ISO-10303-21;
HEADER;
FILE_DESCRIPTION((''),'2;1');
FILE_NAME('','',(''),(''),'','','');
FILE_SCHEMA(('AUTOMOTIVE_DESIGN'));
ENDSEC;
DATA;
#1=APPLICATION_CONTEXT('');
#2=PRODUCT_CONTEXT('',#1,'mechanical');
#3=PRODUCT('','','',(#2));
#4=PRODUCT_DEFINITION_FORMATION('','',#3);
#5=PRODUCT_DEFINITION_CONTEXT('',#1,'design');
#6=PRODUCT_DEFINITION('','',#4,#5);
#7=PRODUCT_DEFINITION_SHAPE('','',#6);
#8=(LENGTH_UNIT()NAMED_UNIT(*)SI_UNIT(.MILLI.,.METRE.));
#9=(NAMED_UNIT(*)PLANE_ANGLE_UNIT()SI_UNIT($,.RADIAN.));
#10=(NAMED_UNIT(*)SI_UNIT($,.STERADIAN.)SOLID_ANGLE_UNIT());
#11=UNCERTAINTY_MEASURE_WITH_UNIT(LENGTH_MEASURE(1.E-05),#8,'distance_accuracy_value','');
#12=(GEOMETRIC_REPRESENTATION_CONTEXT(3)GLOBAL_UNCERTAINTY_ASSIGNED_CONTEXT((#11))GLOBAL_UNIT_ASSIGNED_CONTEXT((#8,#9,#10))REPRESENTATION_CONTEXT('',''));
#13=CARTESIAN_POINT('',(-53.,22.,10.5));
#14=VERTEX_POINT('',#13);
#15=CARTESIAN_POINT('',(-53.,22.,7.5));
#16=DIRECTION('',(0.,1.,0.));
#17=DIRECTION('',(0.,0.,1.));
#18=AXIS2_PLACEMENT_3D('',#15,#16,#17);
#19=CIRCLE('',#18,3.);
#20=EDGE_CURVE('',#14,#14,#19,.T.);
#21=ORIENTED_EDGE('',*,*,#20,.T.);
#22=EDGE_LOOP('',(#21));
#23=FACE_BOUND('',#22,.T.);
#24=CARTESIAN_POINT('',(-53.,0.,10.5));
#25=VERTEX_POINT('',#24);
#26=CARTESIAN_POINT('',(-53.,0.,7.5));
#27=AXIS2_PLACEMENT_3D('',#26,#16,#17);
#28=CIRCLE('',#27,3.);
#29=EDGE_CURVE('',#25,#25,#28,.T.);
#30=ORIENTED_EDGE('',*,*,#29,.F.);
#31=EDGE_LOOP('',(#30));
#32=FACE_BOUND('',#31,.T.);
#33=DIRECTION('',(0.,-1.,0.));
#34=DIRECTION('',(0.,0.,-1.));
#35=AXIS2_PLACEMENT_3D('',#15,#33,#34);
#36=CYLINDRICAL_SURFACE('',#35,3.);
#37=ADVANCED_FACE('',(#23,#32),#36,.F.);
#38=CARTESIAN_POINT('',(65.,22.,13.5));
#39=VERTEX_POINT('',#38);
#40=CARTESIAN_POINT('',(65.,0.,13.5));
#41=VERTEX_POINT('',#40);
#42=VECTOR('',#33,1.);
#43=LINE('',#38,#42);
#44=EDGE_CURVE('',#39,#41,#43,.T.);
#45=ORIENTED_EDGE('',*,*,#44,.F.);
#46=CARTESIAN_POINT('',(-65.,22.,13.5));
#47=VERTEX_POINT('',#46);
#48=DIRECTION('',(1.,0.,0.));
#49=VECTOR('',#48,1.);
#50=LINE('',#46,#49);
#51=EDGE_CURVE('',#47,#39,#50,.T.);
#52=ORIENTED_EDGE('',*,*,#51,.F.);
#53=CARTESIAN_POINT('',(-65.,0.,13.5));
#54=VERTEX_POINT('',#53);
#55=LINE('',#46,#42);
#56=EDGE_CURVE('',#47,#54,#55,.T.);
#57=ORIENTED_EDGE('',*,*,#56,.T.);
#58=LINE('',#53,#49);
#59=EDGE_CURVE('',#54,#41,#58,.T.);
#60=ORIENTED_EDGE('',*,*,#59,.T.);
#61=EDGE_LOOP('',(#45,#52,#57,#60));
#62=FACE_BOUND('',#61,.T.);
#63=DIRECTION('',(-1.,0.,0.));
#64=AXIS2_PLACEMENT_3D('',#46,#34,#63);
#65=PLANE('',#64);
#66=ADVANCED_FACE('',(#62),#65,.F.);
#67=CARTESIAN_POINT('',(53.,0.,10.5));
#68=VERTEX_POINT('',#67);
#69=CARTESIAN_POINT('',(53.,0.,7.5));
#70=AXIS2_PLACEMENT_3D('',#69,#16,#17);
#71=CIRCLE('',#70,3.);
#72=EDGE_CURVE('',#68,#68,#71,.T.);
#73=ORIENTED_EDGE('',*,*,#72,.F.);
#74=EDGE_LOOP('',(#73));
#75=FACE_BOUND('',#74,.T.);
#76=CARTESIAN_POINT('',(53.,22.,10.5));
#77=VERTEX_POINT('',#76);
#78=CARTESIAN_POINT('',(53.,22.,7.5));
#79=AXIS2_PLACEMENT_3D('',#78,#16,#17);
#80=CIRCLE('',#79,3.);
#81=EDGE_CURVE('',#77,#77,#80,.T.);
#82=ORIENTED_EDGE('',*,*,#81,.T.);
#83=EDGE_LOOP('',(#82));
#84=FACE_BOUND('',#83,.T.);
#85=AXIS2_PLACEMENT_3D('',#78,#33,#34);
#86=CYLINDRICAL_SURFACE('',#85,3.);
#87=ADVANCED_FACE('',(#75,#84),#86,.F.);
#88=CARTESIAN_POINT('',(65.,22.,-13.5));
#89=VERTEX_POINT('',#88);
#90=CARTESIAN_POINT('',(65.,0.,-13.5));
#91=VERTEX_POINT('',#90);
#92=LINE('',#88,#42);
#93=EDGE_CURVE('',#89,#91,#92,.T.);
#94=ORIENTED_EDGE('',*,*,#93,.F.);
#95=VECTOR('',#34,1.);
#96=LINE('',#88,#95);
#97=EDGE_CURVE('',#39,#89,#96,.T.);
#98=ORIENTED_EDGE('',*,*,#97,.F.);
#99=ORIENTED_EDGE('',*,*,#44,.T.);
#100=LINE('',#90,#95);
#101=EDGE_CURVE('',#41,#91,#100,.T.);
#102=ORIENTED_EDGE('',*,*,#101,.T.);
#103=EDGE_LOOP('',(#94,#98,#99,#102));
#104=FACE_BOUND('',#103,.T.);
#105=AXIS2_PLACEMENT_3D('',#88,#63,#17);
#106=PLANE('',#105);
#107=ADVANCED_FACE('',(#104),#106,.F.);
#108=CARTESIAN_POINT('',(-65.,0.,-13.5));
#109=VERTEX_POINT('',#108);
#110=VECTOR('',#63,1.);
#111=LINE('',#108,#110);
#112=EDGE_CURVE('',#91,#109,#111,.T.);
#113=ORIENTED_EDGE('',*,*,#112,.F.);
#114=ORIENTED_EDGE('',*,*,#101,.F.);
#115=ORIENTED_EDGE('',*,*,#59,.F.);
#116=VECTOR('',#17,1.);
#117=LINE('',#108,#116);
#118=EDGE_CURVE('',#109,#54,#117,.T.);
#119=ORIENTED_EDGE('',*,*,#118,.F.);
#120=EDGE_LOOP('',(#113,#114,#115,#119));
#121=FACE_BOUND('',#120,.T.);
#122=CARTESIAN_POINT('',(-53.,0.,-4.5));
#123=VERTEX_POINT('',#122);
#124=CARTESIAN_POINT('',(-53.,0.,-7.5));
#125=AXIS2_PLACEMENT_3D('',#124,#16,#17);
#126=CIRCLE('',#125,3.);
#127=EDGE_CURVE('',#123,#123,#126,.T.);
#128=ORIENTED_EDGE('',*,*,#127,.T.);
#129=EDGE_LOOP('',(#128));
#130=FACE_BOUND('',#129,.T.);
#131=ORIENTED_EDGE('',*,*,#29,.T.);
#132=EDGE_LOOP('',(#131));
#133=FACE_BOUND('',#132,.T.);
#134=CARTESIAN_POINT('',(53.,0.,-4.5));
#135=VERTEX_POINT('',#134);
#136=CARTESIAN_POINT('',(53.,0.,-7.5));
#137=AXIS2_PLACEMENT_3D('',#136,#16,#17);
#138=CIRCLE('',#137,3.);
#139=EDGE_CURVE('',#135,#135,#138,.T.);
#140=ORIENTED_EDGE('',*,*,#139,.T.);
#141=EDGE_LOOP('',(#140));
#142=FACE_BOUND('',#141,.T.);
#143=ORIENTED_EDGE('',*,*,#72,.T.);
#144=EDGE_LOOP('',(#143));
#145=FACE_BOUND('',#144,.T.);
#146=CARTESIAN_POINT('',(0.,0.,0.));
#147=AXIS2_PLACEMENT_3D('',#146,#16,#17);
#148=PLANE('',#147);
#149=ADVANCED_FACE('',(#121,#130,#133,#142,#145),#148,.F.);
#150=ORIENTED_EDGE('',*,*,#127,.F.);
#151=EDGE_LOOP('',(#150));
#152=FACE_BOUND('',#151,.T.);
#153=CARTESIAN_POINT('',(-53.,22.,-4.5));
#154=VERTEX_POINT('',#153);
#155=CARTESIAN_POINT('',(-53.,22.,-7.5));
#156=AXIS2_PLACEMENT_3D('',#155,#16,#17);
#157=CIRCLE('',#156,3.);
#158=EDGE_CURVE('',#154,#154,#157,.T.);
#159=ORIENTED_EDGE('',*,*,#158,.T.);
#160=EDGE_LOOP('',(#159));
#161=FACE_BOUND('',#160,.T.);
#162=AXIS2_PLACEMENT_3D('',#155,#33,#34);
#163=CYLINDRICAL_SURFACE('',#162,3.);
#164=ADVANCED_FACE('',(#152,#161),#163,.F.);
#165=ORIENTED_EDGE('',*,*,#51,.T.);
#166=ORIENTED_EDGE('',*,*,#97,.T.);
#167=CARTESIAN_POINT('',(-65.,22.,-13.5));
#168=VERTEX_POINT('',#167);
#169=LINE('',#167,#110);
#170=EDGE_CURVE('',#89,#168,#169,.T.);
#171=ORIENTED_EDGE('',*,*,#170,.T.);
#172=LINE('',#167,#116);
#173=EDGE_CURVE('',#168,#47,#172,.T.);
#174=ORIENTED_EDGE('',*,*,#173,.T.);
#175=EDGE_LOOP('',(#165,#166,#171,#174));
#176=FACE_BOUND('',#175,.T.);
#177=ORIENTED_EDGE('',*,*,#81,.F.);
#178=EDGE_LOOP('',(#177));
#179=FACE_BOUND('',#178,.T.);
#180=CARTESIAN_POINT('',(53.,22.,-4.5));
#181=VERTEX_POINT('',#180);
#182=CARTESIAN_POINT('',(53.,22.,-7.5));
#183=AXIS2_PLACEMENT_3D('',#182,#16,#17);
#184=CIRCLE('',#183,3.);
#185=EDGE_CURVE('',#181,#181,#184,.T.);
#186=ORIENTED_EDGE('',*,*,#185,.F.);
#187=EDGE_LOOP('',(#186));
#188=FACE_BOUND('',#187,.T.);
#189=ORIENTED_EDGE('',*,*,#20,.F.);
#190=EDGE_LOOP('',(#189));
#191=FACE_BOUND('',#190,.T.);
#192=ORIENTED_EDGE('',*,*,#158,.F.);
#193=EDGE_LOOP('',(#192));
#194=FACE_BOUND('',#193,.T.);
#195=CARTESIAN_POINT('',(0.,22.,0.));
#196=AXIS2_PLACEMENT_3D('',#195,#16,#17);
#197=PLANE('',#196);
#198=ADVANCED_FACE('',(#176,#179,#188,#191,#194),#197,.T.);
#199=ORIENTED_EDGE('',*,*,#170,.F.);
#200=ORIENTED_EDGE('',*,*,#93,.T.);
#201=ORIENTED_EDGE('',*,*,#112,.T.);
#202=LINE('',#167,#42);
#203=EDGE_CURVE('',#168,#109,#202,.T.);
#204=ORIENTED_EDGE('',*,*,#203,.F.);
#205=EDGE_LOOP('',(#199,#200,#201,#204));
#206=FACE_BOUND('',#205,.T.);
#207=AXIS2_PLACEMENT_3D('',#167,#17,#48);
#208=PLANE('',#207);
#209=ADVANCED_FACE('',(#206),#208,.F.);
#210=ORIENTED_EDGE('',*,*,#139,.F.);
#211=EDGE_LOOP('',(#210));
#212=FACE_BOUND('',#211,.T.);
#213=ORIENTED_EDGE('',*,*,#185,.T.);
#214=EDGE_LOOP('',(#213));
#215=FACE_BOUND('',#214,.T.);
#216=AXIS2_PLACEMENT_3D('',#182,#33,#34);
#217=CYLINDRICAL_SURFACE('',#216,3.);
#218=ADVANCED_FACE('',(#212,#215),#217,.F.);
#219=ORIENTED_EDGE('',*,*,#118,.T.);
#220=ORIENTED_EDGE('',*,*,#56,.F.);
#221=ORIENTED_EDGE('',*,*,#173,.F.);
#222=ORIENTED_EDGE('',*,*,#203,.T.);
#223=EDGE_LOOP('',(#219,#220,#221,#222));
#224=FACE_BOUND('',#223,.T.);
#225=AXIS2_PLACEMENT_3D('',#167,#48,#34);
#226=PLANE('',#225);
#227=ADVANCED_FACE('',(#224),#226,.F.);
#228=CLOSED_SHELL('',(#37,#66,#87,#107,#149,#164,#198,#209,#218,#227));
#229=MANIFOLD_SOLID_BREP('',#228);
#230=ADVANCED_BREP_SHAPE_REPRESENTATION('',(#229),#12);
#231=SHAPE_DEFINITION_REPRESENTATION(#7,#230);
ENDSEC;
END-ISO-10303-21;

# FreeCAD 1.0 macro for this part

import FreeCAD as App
import Part
import Sketcher

V = App.Vector
Q = App.Units.Quantity


def add_polygon(sketch, points):
    """Adds a closed chain of lines whose ends are joined by coincident constraints."""
    first, n = sketch.GeometryCount, len(points)
    for a, b in zip(points, points[1:] + points[:1]):
        sketch.addGeometry(Part.LineSegment(App.Vector(*a, 0), App.Vector(*b, 0)), False)
    for i in range(n):
        sketch.addConstraint(Sketcher.Constraint("Coincident", first + i, 2, first + (i + 1) % n, 1))

doc = App.newDocument("Part")
body = doc.addObject("PartDesign::Body", "Body")

# Sketch on XZ plane
sketch1 = body.newObject("Sketcher::SketchObject", "Sketch")
sketch1.AttachmentSupport = (doc.getObject("XZ_Plane"), [""])
sketch1.MapMode = "FlatFace"
add_polygon(sketch1, [(-65, -13.5), (-65, 13.5), (65, 13.5), (65, -13.5)])  # lines 0-3
sketch1.addGeometry(Part.Circle(V(-53, 7.5, 0), V(0, 0, 1), 3), False)  # 4
sketch1.addGeometry(Part.Circle(V(53, 7.5, 0), V(0, 0, 1), 3), False)  # 5
sketch1.addGeometry(Part.Circle(V(-53, -7.5, 0), V(0, 0, 1), 3), False)  # 6
sketch1.addGeometry(Part.Circle(V(53, -7.5, 0), V(0, 0, 1), 3), False)  # 7
sketch1.addConstraint(Sketcher.Constraint("Vertical", 0))
sketch1.addConstraint(Sketcher.Constraint("Horizontal", 1))
sketch1.addConstraint(Sketcher.Constraint("Vertical", 2))
sketch1.addConstraint(Sketcher.Constraint("Horizontal", 3))
sketch1.addConstraint(Sketcher.Constraint("Equal", 4, 5))
sketch1.addConstraint(Sketcher.Constraint("Equal", 5, 6))
sketch1.addConstraint(Sketcher.Constraint("Equal", 6, 7))
sketch1.addConstraint(Sketcher.Constraint("Symmetric", 5, 3, 6, 3, -1, 1))
sketch1.addConstraint(Sketcher.Constraint("Symmetric", 4, 3, 7, 3, -1, 1))
sketch1.addConstraint(Sketcher.Constraint("Symmetric", 0, 2, 2, 2, -1, 1))
sketch1.addConstraint(Sketcher.Constraint("Symmetric", 4, 3, 5, 3, -2))
sketch1.addConstraint(Sketcher.Constraint("Diameter", 4, Q("6 mm")))
sketch1.addConstraint(Sketcher.Constraint("DistanceX", 1, 1, 1, 2, Q("130 mm")))
sketch1.addConstraint(Sketcher.Constraint("DistanceY", 0, 1, 0, 2, Q("27 mm")))
sketch1.addConstraint(Sketcher.Constraint("DistanceX", 4, 3, -1, 1, Q("53 mm")))
sketch1.addConstraint(Sketcher.Constraint("DistanceY", 6, 3, 4, 3, Q("15 mm")))
pad1 = body.newObject("PartDesign::Pad", "Pad")
pad1.Profile = sketch1
pad1.Length = 22
pad1.Reversed = True

doc.recompute()
